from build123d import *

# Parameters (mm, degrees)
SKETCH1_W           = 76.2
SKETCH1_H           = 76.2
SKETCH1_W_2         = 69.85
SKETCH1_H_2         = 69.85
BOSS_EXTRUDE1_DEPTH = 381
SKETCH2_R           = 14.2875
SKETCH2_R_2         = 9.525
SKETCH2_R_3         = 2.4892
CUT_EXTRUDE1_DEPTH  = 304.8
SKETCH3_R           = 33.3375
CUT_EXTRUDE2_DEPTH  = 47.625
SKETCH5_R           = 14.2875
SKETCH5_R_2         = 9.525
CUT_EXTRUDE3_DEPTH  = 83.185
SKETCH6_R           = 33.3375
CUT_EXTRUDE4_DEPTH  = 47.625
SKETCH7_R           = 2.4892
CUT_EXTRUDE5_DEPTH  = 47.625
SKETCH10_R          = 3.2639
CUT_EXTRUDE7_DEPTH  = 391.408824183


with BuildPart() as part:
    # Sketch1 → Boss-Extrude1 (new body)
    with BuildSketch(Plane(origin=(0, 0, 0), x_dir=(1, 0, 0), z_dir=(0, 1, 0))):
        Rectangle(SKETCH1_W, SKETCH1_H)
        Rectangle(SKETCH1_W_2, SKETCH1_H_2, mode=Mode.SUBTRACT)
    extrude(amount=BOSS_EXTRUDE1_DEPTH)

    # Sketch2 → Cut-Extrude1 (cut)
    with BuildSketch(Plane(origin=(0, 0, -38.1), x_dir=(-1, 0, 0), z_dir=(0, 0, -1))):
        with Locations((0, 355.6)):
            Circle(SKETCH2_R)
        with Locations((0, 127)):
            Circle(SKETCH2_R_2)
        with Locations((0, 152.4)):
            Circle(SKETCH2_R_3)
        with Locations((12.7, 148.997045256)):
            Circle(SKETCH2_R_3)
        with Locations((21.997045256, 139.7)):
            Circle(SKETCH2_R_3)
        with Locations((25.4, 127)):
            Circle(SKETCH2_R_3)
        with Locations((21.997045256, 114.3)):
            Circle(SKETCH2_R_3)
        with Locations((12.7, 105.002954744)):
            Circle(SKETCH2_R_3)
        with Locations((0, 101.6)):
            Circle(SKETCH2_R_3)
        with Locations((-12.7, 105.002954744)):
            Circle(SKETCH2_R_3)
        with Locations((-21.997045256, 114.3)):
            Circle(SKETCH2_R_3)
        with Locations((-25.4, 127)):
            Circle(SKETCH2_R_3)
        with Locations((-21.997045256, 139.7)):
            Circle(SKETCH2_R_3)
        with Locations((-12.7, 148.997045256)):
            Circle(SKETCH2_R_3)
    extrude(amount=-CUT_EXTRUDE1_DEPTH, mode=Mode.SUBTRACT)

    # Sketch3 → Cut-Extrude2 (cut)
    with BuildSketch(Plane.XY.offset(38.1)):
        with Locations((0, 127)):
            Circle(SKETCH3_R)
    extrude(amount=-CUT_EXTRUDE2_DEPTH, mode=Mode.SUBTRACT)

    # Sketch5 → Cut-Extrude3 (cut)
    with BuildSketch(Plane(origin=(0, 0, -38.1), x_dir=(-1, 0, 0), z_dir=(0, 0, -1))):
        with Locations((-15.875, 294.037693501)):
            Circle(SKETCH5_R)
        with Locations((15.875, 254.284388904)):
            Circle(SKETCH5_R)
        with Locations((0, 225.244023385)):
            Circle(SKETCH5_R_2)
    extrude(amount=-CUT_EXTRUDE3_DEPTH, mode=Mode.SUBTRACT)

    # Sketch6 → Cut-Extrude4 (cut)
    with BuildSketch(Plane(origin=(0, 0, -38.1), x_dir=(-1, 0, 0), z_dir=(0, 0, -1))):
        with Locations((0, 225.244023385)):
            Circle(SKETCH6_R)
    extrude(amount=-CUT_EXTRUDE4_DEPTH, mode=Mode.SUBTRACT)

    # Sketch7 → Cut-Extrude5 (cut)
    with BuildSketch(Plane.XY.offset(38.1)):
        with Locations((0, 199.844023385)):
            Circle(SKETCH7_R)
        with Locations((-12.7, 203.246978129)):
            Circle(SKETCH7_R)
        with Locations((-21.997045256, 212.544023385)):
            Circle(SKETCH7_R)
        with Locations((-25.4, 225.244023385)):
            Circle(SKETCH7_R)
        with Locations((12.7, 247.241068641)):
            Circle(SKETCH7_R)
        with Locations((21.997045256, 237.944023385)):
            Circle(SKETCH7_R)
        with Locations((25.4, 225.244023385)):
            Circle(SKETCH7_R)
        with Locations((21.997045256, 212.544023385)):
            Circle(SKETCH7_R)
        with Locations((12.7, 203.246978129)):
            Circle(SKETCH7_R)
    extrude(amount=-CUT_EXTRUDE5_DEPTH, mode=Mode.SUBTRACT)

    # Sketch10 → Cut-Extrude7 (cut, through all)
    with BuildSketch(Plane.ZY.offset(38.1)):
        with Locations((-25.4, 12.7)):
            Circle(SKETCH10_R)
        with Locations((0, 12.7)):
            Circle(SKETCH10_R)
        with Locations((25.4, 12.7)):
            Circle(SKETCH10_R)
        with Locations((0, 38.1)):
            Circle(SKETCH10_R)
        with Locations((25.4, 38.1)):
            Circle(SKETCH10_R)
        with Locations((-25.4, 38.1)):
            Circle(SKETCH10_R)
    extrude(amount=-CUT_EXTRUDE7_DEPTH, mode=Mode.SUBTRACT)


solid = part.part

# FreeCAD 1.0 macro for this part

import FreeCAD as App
import Part
import Sketcher
from FreeCAD import Vector
Q = App.Units.Quantity

doc = App.newDocument("Part")
params = doc.addObject("Spreadsheet::Sheet", "Params")
for row, (alias, value) in enumerate([
    ("sketch1_width", "3 in"),
    ("sketch1_width2", "2.75 in"),
    ("pad1_length", "15 in"),
    ("sketch2_diameter", "0.75 in"),
    ("sketch2_diameter2", "1.125 in"),
    ("sketch2_diameter3", "0.196 in"),
    ("pocket1_length", "12 in"),
    ("sketch3_diameter", "2.625 in"),
    ("pocket2_length", "1.875 in"),
    ("sketch4_diameter", "0.75 in"),
    ("sketch4_diameter2", "1.125 in"),
    ("pocket3_length", "3.275 in"),
    ("sketch5_diameter", "2.625 in"),
    ("pocket4_length", "1.875 in"),
    ("sketch6_diameter", "0.196 in"),
    ("pocket5_length", "1.875 in"),
    ("sketch7_diameter", "0.257 in"),
], start=1):
    params.set(f"A{row}", alias)
    params.set(f"B{row}", "=" + value)
    params.setAlias(f"B{row}", alias)

body = doc.addObject("PartDesign::Body", "Body")

# Sketch on XZ plane
sketch1 = body.newObject("Sketcher::SketchObject", "Sketch")
sketch1.AttachmentSupport = (doc.getObject("XZ_Plane"), [""])
sketch1.MapMode = "FlatFace"
sketch1.addGeometry(Part.LineSegment(Vector(-38, -38, 0), Vector(-38, 38, 0)), False)
sketch1.addGeometry(Part.LineSegment(Vector(-38, 38, 0), Vector(38, 38, 0)), False)
sketch1.addGeometry(Part.LineSegment(Vector(38, 38, 0), Vector(38, -38, 0)), False)
sketch1.addGeometry(Part.LineSegment(Vector(38, -38, 0), Vector(-38, -38, 0)), False)
sketch1.addGeometry(Part.LineSegment(Vector(35, 35, 0), Vector(-35, 35, 0)), False)
sketch1.addGeometry(Part.LineSegment(Vector(-35, 35, 0), Vector(-35, -35, 0)), False)
sketch1.addGeometry(Part.LineSegment(Vector(-35, -35, 0), Vector(35, -35, 0)), False)
sketch1.addGeometry(Part.LineSegment(Vector(35, -35, 0), Vector(35, 35, 0)), False)
sketch1.addConstraint(Sketcher.Constraint("Coincident", 0, 2, 1, 1))
sketch1.addConstraint(Sketcher.Constraint("Coincident", 1, 2, 2, 1))
sketch1.addConstraint(Sketcher.Constraint("Coincident", 2, 2, 3, 1))
sketch1.addConstraint(Sketcher.Constraint("Coincident", 3, 2, 0, 1))
sketch1.addConstraint(Sketcher.Constraint("Coincident", 4, 2, 5, 1))
sketch1.addConstraint(Sketcher.Constraint("Coincident", 5, 2, 6, 1))
sketch1.addConstraint(Sketcher.Constraint("Coincident", 6, 2, 7, 1))
sketch1.addConstraint(Sketcher.Constraint("Coincident", 7, 2, 4, 1))
sketch1.addConstraint(Sketcher.Constraint("Vertical", 0))
sketch1.addConstraint(Sketcher.Constraint("Horizontal", 1))
sketch1.addConstraint(Sketcher.Constraint("Vertical", 2))
sketch1.addConstraint(Sketcher.Constraint("Horizontal", 3))
sketch1.addConstraint(Sketcher.Constraint("Horizontal", 4))
sketch1.addConstraint(Sketcher.Constraint("Vertical", 5))
sketch1.addConstraint(Sketcher.Constraint("Horizontal", 6))
sketch1.addConstraint(Sketcher.Constraint("Vertical", 7))
sketch1.addConstraint(Sketcher.Constraint("Symmetric", 0, 2, 2, 2, -1, 1))
sketch1.addConstraint(Sketcher.Constraint("Symmetric", 4, 2, 6, 2, -1, 1))
sketch1.addConstraint(Sketcher.Constraint("Equal", 3, 0))
sketch1.addConstraint(Sketcher.Constraint("Equal", 6, 5))
sketch1.addConstraint(Sketcher.Constraint("DistanceX", 1, 1, 1, 2, Q("3 in")))
sketch1.addConstraint(Sketcher.Constraint("DistanceX", 4, 2, 4, 1, Q("2.75 in")))
sketch1.setExpression("Constraints[20]", "Params.sketch1_width")
sketch1.setExpression("Constraints[21]", "Params.sketch1_width2")
pad1 = body.newObject("PartDesign::Pad", "Pad")
pad1.Profile = sketch1
pad1.setExpression("Length", "Params.pad1_length")
pad1.Reversed = True

# Sketch on XY plane
sketch2 = body.newObject("Sketcher::SketchObject", "Sketch001")
sketch2.AttachmentSupport = (doc.getObject("XY_Plane"), [""])
sketch2.MapMode = "FlatFace"
sketch2.AttachmentOffset = App.Placement(Vector(0, 0, -1.5 * 25.4), App.Rotation())
sketch2.addGeometry(Part.Circle(Vector(0, 355.6, 0), Vector(0, 0, 1), 14.3), False)
sketch2.addGeometry(Part.Circle(Vector(0, 127, 0), Vector(0, 0, 1), 9.5), False)
sketch2.addGeometry(Part.Circle(Vector(0, 152.4, 0), Vector(0, 0, 1), 2.5), False)
sketch2.addGeometry(Part.Circle(Vector(-12.7, 149, 0), Vector(0, 0, 1), 2.5), False)
sketch2.addGeometry(Part.Circle(Vector(-22, 139.7, 0), Vector(0, 0, 1), 2.5), False)
sketch2.addGeometry(Part.Circle(Vector(-25.4, 127, 0), Vector(0, 0, 1), 2.5), False)
sketch2.addGeometry(Part.Circle(Vector(-22, 114.3, 0), Vector(0, 0, 1), 2.5), False)
sketch2.addGeometry(Part.Circle(Vector(-12.7, 105, 0), Vector(0, 0, 1), 2.5), False)
sketch2.addGeometry(Part.Circle(Vector(0, 101.6, 0), Vector(0, 0, 1), 2.5), False)
sketch2.addGeometry(Part.Circle(Vector(12.7, 105, 0), Vector(0, 0, 1), 2.5), False)
sketch2.addGeometry(Part.Circle(Vector(22, 114.3, 0), Vector(0, 0, 1), 2.5), False)
sketch2.addGeometry(Part.Circle(Vector(25.4, 127, 0), Vector(0, 0, 1), 2.5), False)
sketch2.addGeometry(Part.Circle(Vector(22, 139.7, 0), Vector(0, 0, 1), 2.5), False)
sketch2.addGeometry(Part.Circle(Vector(12.7, 149, 0), Vector(0, 0, 1), 2.5), False)
sketch2.addConstraint(Sketcher.Constraint("Equal", 2, 3))
sketch2.addConstraint(Sketcher.Constraint("Equal", 3, 4))
sketch2.addConstraint(Sketcher.Constraint("Equal", 4, 5))
sketch2.addConstraint(Sketcher.Constraint("Equal", 5, 6))
sketch2.addConstraint(Sketcher.Constraint("Equal", 6, 7))
sketch2.addConstraint(Sketcher.Constraint("Equal", 7, 8))
sketch2.addConstraint(Sketcher.Constraint("Equal", 8, 9))
sketch2.addConstraint(Sketcher.Constraint("Equal", 9, 10))
sketch2.addConstraint(Sketcher.Constraint("Equal", 10, 11))
sketch2.addConstraint(Sketcher.Constraint("Equal", 11, 12))
sketch2.addConstraint(Sketcher.Constraint("Equal", 12, 13))
sketch2.addConstraint(Sketcher.Constraint("Symmetric", 7, 3, 9, 3, -2))
sketch2.addConstraint(Sketcher.Constraint("Symmetric", 6, 3, 10, 3, -2))
sketch2.addConstraint(Sketcher.Constraint("Symmetric", 5, 3, 11, 3, -2))
sketch2.addConstraint(Sketcher.Constraint("Symmetric", 4, 3, 12, 3, -2))
sketch2.addConstraint(Sketcher.Constraint("Symmetric", 3, 3, 13, 3, -2))
sketch2.addConstraint(Sketcher.Constraint("PointOnObject", 0, 3, -2))
sketch2.addConstraint(Sketcher.Constraint("PointOnObject", 1, 3, -2))
sketch2.addConstraint(Sketcher.Constraint("PointOnObject", 2, 3, -2))
sketch2.addConstraint(Sketcher.Constraint("PointOnObject", 8, 3, -2))
sketch2.addConstraint(Sketcher.Constraint("Horizontal", 1, 3, 5, 3))
sketch2.addConstraint(Sketcher.Constraint("Vertical", 4, 3, 6, 3))
sketch2.addConstraint(Sketcher.Constraint("Vertical", 3, 3, 7, 3))
sketch2.addConstraint(Sketcher.Constraint("Diameter", 1, Q("0.75 in")))
sketch2.addConstraint(Sketcher.Constraint("Diameter", 0, Q("1.125 in")))
sketch2.addConstraint(Sketcher.Constraint("Diameter", 2, Q("0.196 in")))
sketch2.addConstraint(Sketcher.Constraint("DistanceY", -1, 1, 0, 3, Q("14 in")))
sketch2.addConstraint(Sketcher.Constraint("DistanceY", -1, 1, 1, 3, Q("5 in")))
sketch2.addConstraint(Sketcher.Constraint("DistanceY", -1, 1, 2, 3, Q("6 in")))
sketch2.addConstraint(Sketcher.Constraint("DistanceX", 5, 3, -1, 1, Q("1 in")))
sketch2.addConstraint(Sketcher.Constraint("DistanceY", -1, 1, 8, 3, Q("4 in")))
sketch2.addConstraint(Sketcher.Constraint("DistanceY", 6, 3, 4, 3, Q("1 in")))
sketch2.addConstraint(Sketcher.Constraint("DistanceX", 7, 3, 9, 3, Q("1 in")))
sketch2.addConstraint(Sketcher.Constraint("DistanceY", -1, 1, 4, 3, Q("5.5 in")))
sketch2.addConstraint(Sketcher.Constraint("DistanceY", 7, 3, 3, 3, 43.994091))
sketch2.addConstraint(Sketcher.Constraint("DistanceX", 6, 3, 10, 3, 43.994091))
sketch2.addConstraint(Sketcher.Constraint("DistanceY", -1, 1, 3, 3, 148.997045))
sketch2.setExpression("Constraints[23]", "Params.sketch2_diameter")
sketch2.setExpression("Constraints[24]", "Params.sketch2_diameter2")
sketch2.setExpression("Constraints[25]", "Params.sketch2_diameter3")
pocket1 = body.newObject("PartDesign::Pocket", "Pocket")
pocket1.Profile = sketch2
pocket1.setExpression("Length", "Params.pocket1_length")
pocket1.Reversed = True

# Sketch on XY plane
sketch3 = body.newObject("Sketcher::SketchObject", "Sketch002")
sketch3.AttachmentSupport = (doc.getObject("XY_Plane"), [""])
sketch3.MapMode = "FlatFace"
sketch3.AttachmentOffset = App.Placement(Vector(0, 0, 1.5 * 25.4), App.Rotation())
sketch3.addGeometry(Part.Circle(Vector(0, 127, 0), Vector(0, 0, 1), 33), False)
sketch3.addConstraint(Sketcher.Constraint("PointOnObject", 0, 3, -2))
sketch3.addConstraint(Sketcher.Constraint("Diameter", 0, Q("2.625 in")))
sketch3.addConstraint(Sketcher.Constraint("DistanceY", -1, 1, 0, 3, Q("5 in")))
sketch3.setExpression("Constraints[1]", "Params.sketch3_diameter")
pocket2 = body.newObject("PartDesign::Pocket", "Pocket001")
pocket2.Profile = sketch3
pocket2.setExpression("Length", "Params.pocket2_length")

# Sketch on XY plane
sketch4 = body.newObject("Sketcher::SketchObject", "Sketch003")
sketch4.AttachmentSupport = (doc.getObject("XY_Plane"), [""])
sketch4.MapMode = "FlatFace"
sketch4.AttachmentOffset = App.Placement(Vector(0, 0, -1.5 * 25.4), App.Rotation())
sketch4.addGeometry(Part.Circle(Vector(16, 294, 0), Vector(0, 0, 1), 14), False)
sketch4.addGeometry(Part.Circle(Vector(-16, 254, 0), Vector(0, 0, 1), 14), False)
sketch4.addGeometry(Part.Circle(Vector(0, 225, 0), Vector(0, 0, 1), 10), False)
sketch4.addConstraint(Sketcher.Constraint("Equal", 0, 1))
sketch4.addConstraint(Sketcher.Constraint("PointOnObject", 2, 3, -2))
sketch4.addConstraint(Sketcher.Constraint("Diameter", 2, Q("0.75 in")))
sketch4.addConstraint(Sketcher.Constraint("Diameter", 0, Q("1.125 in")))
sketch4.addConstraint(Sketcher.Constraint("DistanceX", 1, 3, 0, 3, Q("1.25 in")))
sketch4.addConstraint(Sketcher.Constraint("DistanceX", -1, 1, 0, 3, Q("0.625 in")))
sketch4.addConstraint(Sketcher.Constraint("DistanceY", -1, 1, 1, 3, 254.284389))
sketch4.addConstraint(Sketcher.Constraint("DistanceY", 2, 3, 0, 3, 68.79367))
sketch4.addConstraint(Sketcher.Constraint("DistanceY", -1, 1, 0, 3, 294.037694))
sketch4.setExpression("Constraints[2]", "Params.sketch4_diameter")
sketch4.setExpression("Constraints[3]", "Params.sketch4_diameter2")
pocket3 = body.newObject("PartDesign::Pocket", "Pocket002")
pocket3.Profile = sketch4
pocket3.setExpression("Length", "Params.pocket3_length")
pocket3.Reversed = True

# Sketch on XY plane
sketch5 = body.newObject("Sketcher::SketchObject", "Sketch004")
sketch5.AttachmentSupport = (doc.getObject("XY_Plane"), [""])
sketch5.MapMode = "FlatFace"
sketch5.AttachmentOffset = App.Placement(Vector(0, 0, -1.5 * 25.4), App.Rotation())
sketch5.addGeometry(Part.Circle(Vector(0, 225, 0), Vector(0, 0, 1), 33), False)
sketch5.addConstraint(Sketcher.Constraint("PointOnObject", 0, 3, -2))
sketch5.addConstraint(Sketcher.Constraint("Diameter", 0, Q("2.625 in")))
sketch5.addConstraint(Sketcher.Constraint("DistanceY", -1, 1, 0, 3, 225.244023))
sketch5.setExpression("Constraints[1]", "Params.sketch5_diameter")
pocket4 = body.newObject("PartDesign::Pocket", "Pocket003")
pocket4.Profile = sketch5
pocket4.setExpression("Length", "Params.pocket4_length")
pocket4.Reversed = True

# Sketch on XY plane
sketch6 = body.newObject("Sketcher::SketchObject", "Sketch005")
sketch6.AttachmentSupport = (doc.getObject("XY_Plane"), [""])
sketch6.MapMode = "FlatFace"
sketch6.AttachmentOffset = App.Placement(Vector(0, 0, 1.5 * 25.4), App.Rotation())
sketch6.addGeometry(Part.Circle(Vector(0, 199.8, 0), Vector(0, 0, 1), 2.5), False)
sketch6.addGeometry(Part.Circle(Vector(-12.7, 203.2, 0), Vector(0, 0, 1), 2.5), False)
sketch6.addGeometry(Part.Circle(Vector(-22, 212.5, 0), Vector(0, 0, 1), 2.5), False)
sketch6.addGeometry(Part.Circle(Vector(-25.4, 225.2, 0), Vector(0, 0, 1), 2.5), False)
sketch6.addGeometry(Part.Circle(Vector(12.7, 247.2, 0), Vector(0, 0, 1), 2.5), False)
sketch6.addGeometry(Part.Circle(Vector(22, 237.9, 0), Vector(0, 0, 1), 2.5), False)
sketch6.addGeometry(Part.Circle(Vector(25.4, 225.2, 0), Vector(0, 0, 1), 2.5), False)
sketch6.addGeometry(Part.Circle(Vector(22, 212.5, 0), Vector(0, 0, 1), 2.5), False)
sketch6.addGeometry(Part.Circle(Vector(12.7, 203.2, 0), Vector(0, 0, 1), 2.5), False)
sketch6.addConstraint(Sketcher.Constraint("Equal", 0, 1))
sketch6.addConstraint(Sketcher.Constraint("Equal", 1, 2))
sketch6.addConstraint(Sketcher.Constraint("Equal", 2, 3))
sketch6.addConstraint(Sketcher.Constraint("Equal", 3, 4))
sketch6.addConstraint(Sketcher.Constraint("Equal", 4, 5))
sketch6.addConstraint(Sketcher.Constraint("Equal", 5, 6))
sketch6.addConstraint(Sketcher.Constraint("Equal", 6, 7))
sketch6.addConstraint(Sketcher.Constraint("Equal", 7, 8))
sketch6.addConstraint(Sketcher.Constraint("Symmetric", 3, 3, 6, 3, -2))
sketch6.addConstraint(Sketcher.Constraint("Symmetric", 2, 3, 7, 3, -2))
sketch6.addConstraint(Sketcher.Constraint("Symmetric", 1, 3, 8, 3, -2))
sketch6.addConstraint(Sketcher.Constraint("PointOnObject", 0, 3, -2))
sketch6.addConstraint(Sketcher.Constraint("Vertical", 5, 3, 7, 3))
sketch6.addConstraint(Sketcher.Constraint("Vertical", 4, 3, 8, 3))
sketch6.addConstraint(Sketcher.Constraint("Diameter", 0, Q("0.196 in")))
sketch6.addConstraint(Sketcher.Constraint("DistanceX", 3, 3, -1, 1, Q("1 in")))
sketch6.addConstraint(Sketcher.Constraint("DistanceY", 0, 3, 3, 3, Q("1 in")))
sketch6.addConstraint(Sketcher.Constraint("DistanceX", 1, 3, 4, 3, Q("1 in")))
sketch6.addConstraint(Sketcher.Constraint("DistanceY", 2, 3, 5, 3, Q("1 in")))
sketch6.addConstraint(Sketcher.Constraint("DistanceY", 0, 3, 2, 3, Q("0.5 in")))
sketch6.addConstraint(Sketcher.Constraint("DistanceY", -1, 1, 1, 3, 203.246978))
sketch6.addConstraint(Sketcher.Constraint("DistanceY", -1, 1, 4, 3, 247.241069))
sketch6.addConstraint(Sketcher.Constraint("DistanceX", 2, 3, 5, 3, 43.994091))
sketch6.addConstraint(Sketcher.Constraint("DistanceY", -1, 1, 0, 3, 199.844023))
sketch6.setExpression("Constraints[14]", "Params.sketch6_diameter")
pocket5 = body.newObject("PartDesign::Pocket", "Pocket004")
pocket5.Profile = sketch6
pocket5.setExpression("Length", "Params.pocket5_length")

# Sketch on YZ plane
sketch7 = body.newObject("Sketcher::SketchObject", "Sketch006")
sketch7.AttachmentSupport = (doc.getObject("YZ_Plane"), [""])
sketch7.MapMode = "FlatFace"
sketch7.AttachmentOffset = App.Placement(Vector(0, 0, -1.5 * 25.4), App.Rotation())
sketch7.addGeometry(Part.Circle(Vector(12.7, -25.4, 0), Vector(0, 0, 1), 3.3), False)
sketch7.addGeometry(Part.Circle(Vector(12.7, 0, 0), Vector(0, 0, 1), 3.3), False)
sketch7.addGeometry(Part.Circle(Vector(12.7, 25.4, 0), Vector(0, 0, 1), 3.3), False)
sketch7.addGeometry(Part.Circle(Vector(38.1, 0, 0), Vector(0, 0, 1), 3.3), False)
sketch7.addGeometry(Part.Circle(Vector(38.1, 25.4, 0), Vector(0, 0, 1), 3.3), False)
sketch7.addGeometry(Part.Circle(Vector(38.1, -25.4, 0), Vector(0, 0, 1), 3.3), False)
sketch7.addConstraint(Sketcher.Constraint("Equal", 0, 1))
sketch7.addConstraint(Sketcher.Constraint("Equal", 1, 2))
sketch7.addConstraint(Sketcher.Constraint("Equal", 2, 3))
sketch7.addConstraint(Sketcher.Constraint("Equal", 3, 4))
sketch7.addConstraint(Sketcher.Constraint("Equal", 4, 5))
sketch7.addConstraint(Sketcher.Constraint("Symmetric", 0, 3, 2, 3, -1))
sketch7.addConstraint(Sketcher.Constraint("Symmetric", 4, 3, 5, 3, -1))
sketch7.addConstraint(Sketcher.Constraint("PointOnObject", 1, 3, -1))
sketch7.addConstraint(Sketcher.Constraint("PointOnObject", 3, 3, -1))
sketch7.addConstraint(Sketcher.Constraint("Horizontal", 2, 3, 4, 3))
sketch7.addConstraint(Sketcher.Constraint("Vertical", 0, 3, 1, 3))
sketch7.addConstraint(Sketcher.Constraint("Vertical", 3, 3, 4, 3))
sketch7.addConstraint(Sketcher.Constraint("Diameter", 0, Q("0.257 in")))
sketch7.addConstraint(Sketcher.Constraint("DistanceY", 0, 3, -1, 1, Q("1 in")))
sketch7.addConstraint(Sketcher.Constraint("DistanceX", 1, 3, 3, 3, Q("1 in")))
sketch7.addConstraint(Sketcher.Constraint("DistanceX", -1, 1, 0, 3, Q("0.5 in")))
sketch7.setExpression("Constraints[12]", "Params.sketch7_diameter")
pocket6 = body.newObject("PartDesign::Pocket", "Pocket005")
pocket6.Profile = sketch7
pocket6.Type = "ThroughAll"
pocket6.Reversed = True

doc.recompute()
